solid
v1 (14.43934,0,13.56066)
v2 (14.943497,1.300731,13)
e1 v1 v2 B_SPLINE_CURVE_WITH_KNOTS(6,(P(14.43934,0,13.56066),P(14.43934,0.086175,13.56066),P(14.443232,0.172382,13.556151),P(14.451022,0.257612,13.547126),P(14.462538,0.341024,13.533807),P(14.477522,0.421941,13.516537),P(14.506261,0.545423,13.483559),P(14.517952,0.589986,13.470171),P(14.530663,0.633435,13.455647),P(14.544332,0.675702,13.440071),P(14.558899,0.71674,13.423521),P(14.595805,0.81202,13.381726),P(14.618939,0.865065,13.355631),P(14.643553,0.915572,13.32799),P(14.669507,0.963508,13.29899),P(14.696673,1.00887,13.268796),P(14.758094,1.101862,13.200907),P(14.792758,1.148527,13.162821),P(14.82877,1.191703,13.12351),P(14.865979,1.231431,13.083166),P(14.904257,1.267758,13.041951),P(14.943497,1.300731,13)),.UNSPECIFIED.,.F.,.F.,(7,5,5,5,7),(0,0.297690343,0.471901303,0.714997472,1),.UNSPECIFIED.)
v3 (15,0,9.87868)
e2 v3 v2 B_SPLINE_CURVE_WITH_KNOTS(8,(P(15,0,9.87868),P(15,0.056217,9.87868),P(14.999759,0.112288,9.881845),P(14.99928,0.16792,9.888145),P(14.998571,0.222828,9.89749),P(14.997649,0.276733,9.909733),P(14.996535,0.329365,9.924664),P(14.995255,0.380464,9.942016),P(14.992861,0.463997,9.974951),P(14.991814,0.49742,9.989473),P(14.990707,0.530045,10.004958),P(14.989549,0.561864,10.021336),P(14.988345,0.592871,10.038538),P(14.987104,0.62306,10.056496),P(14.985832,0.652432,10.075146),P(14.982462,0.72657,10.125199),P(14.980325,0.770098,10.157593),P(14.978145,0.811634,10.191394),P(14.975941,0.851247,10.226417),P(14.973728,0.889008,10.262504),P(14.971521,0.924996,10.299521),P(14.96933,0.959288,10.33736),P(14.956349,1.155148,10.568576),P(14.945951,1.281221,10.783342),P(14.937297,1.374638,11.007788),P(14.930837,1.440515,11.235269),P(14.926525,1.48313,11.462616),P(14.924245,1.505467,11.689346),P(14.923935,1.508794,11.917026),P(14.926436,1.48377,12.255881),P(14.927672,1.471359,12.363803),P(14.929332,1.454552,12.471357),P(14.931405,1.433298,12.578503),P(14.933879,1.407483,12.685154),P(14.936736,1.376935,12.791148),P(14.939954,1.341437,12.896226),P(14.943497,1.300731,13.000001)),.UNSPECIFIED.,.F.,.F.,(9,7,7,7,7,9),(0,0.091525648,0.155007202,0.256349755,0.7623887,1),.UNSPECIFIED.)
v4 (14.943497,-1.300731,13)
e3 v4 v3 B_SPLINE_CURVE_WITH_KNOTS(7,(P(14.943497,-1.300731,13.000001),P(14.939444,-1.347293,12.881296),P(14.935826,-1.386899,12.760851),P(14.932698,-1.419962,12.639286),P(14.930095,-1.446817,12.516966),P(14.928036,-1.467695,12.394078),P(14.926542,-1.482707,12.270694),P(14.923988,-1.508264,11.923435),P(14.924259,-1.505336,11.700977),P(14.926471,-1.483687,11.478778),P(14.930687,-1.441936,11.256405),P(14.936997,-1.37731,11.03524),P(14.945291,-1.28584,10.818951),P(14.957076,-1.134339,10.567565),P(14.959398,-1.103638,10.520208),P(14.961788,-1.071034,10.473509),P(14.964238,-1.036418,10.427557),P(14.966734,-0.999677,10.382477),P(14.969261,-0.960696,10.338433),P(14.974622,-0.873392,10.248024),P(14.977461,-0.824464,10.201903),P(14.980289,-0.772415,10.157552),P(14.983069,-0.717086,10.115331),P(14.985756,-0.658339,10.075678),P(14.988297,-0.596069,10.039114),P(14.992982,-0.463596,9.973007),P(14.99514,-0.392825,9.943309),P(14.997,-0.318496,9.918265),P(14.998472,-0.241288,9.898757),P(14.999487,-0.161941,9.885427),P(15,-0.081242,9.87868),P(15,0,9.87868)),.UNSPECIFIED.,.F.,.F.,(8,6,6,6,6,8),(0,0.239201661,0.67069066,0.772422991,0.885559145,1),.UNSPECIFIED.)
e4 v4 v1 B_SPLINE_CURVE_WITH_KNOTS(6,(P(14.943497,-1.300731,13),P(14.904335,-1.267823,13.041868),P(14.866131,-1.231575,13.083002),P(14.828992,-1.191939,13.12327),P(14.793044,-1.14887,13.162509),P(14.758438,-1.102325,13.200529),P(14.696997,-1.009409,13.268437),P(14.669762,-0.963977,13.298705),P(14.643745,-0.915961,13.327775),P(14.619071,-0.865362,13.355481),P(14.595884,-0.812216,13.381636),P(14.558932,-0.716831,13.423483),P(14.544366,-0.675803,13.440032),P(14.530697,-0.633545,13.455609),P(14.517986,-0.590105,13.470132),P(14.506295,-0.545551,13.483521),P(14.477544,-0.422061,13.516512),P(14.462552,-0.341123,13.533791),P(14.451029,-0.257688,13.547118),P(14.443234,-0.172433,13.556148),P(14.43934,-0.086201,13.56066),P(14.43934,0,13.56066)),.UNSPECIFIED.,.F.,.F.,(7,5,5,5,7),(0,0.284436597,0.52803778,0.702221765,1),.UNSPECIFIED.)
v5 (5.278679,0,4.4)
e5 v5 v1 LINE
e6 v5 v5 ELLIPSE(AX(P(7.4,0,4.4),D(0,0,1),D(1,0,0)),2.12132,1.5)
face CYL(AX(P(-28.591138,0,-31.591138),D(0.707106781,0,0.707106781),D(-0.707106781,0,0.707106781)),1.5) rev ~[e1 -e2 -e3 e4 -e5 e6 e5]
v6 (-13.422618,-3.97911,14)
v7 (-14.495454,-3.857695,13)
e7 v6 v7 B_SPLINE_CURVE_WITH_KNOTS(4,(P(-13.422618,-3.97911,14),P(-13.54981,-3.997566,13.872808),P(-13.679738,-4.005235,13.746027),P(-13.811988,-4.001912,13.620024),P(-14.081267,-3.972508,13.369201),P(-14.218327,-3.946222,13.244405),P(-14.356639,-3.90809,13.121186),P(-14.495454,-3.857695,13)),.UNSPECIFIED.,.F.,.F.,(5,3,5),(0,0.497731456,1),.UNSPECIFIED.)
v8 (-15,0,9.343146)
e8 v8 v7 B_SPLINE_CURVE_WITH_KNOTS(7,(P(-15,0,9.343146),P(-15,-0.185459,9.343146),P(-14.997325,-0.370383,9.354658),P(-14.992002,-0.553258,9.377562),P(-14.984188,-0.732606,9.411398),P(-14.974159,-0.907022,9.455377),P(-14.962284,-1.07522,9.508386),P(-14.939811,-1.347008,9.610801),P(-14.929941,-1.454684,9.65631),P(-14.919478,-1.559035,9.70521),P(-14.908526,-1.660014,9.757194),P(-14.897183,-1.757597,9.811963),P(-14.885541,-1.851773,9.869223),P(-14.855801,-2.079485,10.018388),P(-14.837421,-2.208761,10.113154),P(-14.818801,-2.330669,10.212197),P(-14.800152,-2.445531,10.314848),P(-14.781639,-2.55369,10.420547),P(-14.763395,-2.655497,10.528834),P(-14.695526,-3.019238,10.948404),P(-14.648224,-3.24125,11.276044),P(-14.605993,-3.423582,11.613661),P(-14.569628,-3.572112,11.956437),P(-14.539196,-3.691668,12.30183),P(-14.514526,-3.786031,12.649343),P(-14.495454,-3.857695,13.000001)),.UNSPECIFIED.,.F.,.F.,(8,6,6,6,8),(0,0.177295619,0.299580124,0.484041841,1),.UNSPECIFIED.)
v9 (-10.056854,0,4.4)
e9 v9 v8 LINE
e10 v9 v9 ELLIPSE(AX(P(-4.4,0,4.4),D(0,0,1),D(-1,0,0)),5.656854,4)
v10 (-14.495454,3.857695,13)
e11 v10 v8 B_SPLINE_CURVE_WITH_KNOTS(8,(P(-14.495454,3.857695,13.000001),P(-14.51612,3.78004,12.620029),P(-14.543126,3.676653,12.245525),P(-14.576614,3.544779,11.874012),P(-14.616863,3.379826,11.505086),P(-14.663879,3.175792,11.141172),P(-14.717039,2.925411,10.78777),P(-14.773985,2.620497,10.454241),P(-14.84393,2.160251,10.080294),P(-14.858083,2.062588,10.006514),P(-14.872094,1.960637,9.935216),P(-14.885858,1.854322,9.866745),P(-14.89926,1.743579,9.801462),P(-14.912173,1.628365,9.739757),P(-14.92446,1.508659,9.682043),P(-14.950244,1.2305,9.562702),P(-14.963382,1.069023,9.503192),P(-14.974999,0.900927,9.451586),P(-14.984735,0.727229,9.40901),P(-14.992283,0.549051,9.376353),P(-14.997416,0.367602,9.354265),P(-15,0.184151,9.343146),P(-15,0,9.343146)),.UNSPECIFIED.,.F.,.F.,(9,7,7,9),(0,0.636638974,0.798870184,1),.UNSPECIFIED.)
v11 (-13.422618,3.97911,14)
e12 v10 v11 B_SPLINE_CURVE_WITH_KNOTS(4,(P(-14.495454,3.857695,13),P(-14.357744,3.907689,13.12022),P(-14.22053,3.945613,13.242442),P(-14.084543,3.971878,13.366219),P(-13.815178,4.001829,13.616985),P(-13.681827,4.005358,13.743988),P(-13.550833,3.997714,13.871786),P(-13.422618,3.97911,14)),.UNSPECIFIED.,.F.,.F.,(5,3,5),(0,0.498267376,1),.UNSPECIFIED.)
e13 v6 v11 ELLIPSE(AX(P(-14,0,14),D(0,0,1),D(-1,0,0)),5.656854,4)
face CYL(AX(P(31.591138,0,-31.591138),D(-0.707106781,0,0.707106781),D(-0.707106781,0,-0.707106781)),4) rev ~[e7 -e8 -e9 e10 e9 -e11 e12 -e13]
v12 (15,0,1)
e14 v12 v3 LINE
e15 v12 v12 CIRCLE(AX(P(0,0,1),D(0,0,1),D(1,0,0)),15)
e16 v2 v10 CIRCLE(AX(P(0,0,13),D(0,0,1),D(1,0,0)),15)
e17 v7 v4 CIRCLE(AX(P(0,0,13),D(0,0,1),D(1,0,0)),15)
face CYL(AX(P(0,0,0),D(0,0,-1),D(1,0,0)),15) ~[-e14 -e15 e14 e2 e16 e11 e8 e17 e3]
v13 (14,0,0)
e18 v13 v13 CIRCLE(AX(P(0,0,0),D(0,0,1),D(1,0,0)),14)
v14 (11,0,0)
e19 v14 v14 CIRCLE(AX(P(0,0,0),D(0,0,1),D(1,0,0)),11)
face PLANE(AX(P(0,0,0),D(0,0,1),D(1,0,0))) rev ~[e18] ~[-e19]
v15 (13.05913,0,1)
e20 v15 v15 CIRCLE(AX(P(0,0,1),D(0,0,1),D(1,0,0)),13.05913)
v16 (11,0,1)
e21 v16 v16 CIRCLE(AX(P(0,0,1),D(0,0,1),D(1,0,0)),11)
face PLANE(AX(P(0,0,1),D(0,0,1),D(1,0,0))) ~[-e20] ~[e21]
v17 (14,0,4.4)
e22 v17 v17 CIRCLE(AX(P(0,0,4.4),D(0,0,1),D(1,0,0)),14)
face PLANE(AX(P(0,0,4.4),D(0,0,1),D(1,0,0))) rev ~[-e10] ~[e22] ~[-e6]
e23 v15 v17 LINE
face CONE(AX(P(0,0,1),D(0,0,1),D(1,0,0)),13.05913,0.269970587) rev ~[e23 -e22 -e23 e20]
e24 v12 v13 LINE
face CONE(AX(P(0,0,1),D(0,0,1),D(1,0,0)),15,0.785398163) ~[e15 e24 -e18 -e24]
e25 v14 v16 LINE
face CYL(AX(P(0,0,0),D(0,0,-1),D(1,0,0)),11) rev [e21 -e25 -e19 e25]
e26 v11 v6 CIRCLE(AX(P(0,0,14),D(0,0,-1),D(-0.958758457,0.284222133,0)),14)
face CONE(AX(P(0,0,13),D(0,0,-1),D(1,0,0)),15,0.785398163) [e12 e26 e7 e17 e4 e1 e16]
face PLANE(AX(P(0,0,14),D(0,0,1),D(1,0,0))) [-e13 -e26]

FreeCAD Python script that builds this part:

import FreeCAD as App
import Part
import Sketcher
from FreeCAD import Vector
Q = App.Units.Quantity


def edges_at(feature, points):
    """Names of the edges that pass closest to the given points."""
    edges = feature.Shape.Edges
    near = lambda p: min(range(len(edges)), key=lambda i: edges[i].distToShape(Part.Vertex(*p))[0])
    return sorted({f"Edge{near(p) + 1}" for p in points})


def add_polygon(sketch, points):
    """Adds a closed chain of lines whose ends are joined by coincident constraints."""
    first, n = sketch.GeometryCount, len(points)
    for a, b in zip(points, points[1:] + points[:1]):
        sketch.addGeometry(Part.LineSegment(App.Vector(*a, 0), App.Vector(*b, 0)), False)
    for i in range(n):
        sketch.addConstraint(Sketcher.Constraint("Coincident", first + i, 2, first + (i + 1) % n, 1))

doc = App.newDocument("Part")
body = doc.addObject("PartDesign::Body", "Body")

sketch1 = body.newObject("Sketcher::SketchObject", "Sketch")
sketch1.AttachmentSupport = (doc.getObject("XY_Plane"), [""])
sketch1.MapMode = "FlatFace"
sketch1.addGeometry(Part.Circle(Vector(0, 0, 0), Vector(0, 0, 1), 15), False)
sketch1.addConstraint(Sketcher.Constraint("Coincident", 0, 3, -1, 1))
sketch1.addConstraint(Sketcher.Constraint("Diameter", 0, Q("30 mm")))
pad1 = body.newObject("PartDesign::Pad", "Pad")
pad1.Profile = sketch1
pad1.Length = 14
doc.recompute()

chamfer = body.newObject("PartDesign::Chamfer", "Chamfer")
chamfer.Base = (pad1, edges_at(pad1, [(-15, 0, 14), (-15, 0, 0)]))
chamfer.Size = 1

sketch2 = body.newObject("Sketcher::SketchObject", "Sketch001")
sketch2.AttachmentSupport = (doc.getObject("XY_Plane"), [""])
sketch2.MapMode = "FlatFace"
sketch2.addGeometry(Part.Circle(Vector(0, 0, 0), Vector(0, 0, 1), 11), False)
sketch2.addConstraint(Sketcher.Constraint("Coincident", 0, 3, -1, 1))
sketch2.addConstraint(Sketcher.Constraint("Diameter", 0, Q("22 mm")))
pocket1 = body.newObject("PartDesign::Pocket", "Pocket")
pocket1.Profile = sketch2
pocket1.Length = 4.4
pocket1.Reversed = True

sketch3 = body.newObject("Sketcher::SketchObject", "Sketch002")
sketch3.AttachmentSupport = (doc.getObject("XZ_Plane"), [""])
sketch3.MapMode = "FlatFace"
add_polygon(sketch3, [(14, 4.4), (11, 4.4), (11, 1), (13.05913, 1)])
sketch3.addConstraint(Sketcher.Constraint("Horizontal", 0))
sketch3.addConstraint(Sketcher.Constraint("Vertical", 1))
sketch3.addConstraint(Sketcher.Constraint("Horizontal", 2))
sketch3.addConstraint(Sketcher.Constraint("DistanceX", 0, 2, 0, 1, Q("3 mm")))
sketch3.addConstraint(Sketcher.Constraint("DistanceY", 1, 2, 1, 1, Q("3.4 mm")))
sketch3.addConstraint(Sketcher.Constraint("DistanceX", -1, 1, 0, 2, Q("11 mm")))
sketch3.addConstraint(Sketcher.Constraint("DistanceY", -1, 1, 1, 2, Q("1 mm")))
sketch3.addConstraint(Sketcher.Constraint("DistanceX", 2, 1, 2, 2, Q("2.05913 mm")))
groove = body.newObject("PartDesign::Groove", "Groove")
groove.Profile = sketch3
groove.ReferenceAxis = (sketch3, ["V_Axis"])
groove.Angle = 360

sketch4 = body.newObject("Sketcher::SketchObject", "Sketch003")
sketch4.Placement = App.Placement(Vector(0, 0, 0), App.Rotation(Vector(0.707106781, 0, 0.707106781), Vector(0, -0.999999999, 0), Vector(0.707106781, 0, -0.707106781), "ZXY"))
sketch4.addGeometry(Part.Circle(Vector(0, 0, 0), Vector(0, 0, 1), 4), False)
sketch4.addConstraint(Sketcher.Constraint("Coincident", 0, 3, -1, 1))
sketch4.addConstraint(Sketcher.Constraint("Diameter", 0, Q("8 mm")))
doc.recompute()
hole = body.newObject("PartDesign::Hole", "Hole")
hole.Profile = sketch4
hole.ThreadType = "None"
hole.Diameter = 8
hole.DepthType = "ThroughAll"

sketch5 = body.newObject("Sketcher::SketchObject", "Sketch004")
sketch5.Placement = App.Placement(Vector(1.5, 0, 1.5), App.Rotation(Vector(0.707106781, 0, -0.707106781), Vector(0, -0.999999999, 0), Vector(-0.707106781, 0, -0.707106781), "ZXY"))
sketch5.addGeometry(Part.Circle(Vector(2.12132, 0, 0), Vector(0, 0, 1), 1.5), False)
sketch5.addConstraint(Sketcher.Constraint("PointOnObject", 0, 3, -1))
sketch5.addConstraint(Sketcher.Constraint("Diameter", 0, Q("3 mm")))
sketch5.addConstraint(Sketcher.Constraint("DistanceX", -1, 1, 0, 3, Q("2.12132 mm")))
doc.recompute()
hole2 = body.newObject("PartDesign::Hole", "Hole001")
hole2.Profile = sketch5
hole2.ThreadType = "None"
hole2.Diameter = 3
hole2.DepthType = "ThroughAll"

doc.recompute()
